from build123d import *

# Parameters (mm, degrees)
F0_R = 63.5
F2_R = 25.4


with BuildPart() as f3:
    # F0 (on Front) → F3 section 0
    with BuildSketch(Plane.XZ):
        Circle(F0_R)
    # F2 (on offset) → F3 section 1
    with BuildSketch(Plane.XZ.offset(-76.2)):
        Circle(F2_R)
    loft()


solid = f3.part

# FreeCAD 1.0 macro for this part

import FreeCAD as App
import Part
import Sketcher

V = App.Vector
Q = App.Units.Quantity

doc = App.newDocument("Part")
params = doc.addObject("Spreadsheet::Sheet", "Params")
for row, (alias, value) in enumerate([
    ("sketch1_diameter", "5 in"),
    ("sketch2_diameter", "2 in"),
], start=1):
    params.set(f"A{row}", alias)
    params.set(f"B{row}", "=" + value)
    params.setAlias(f"B{row}", alias)

body = doc.addObject("PartDesign::Body", "Body")

# Sketch on XZ plane
sketch1 = body.newObject("Sketcher::SketchObject", "Sketch")
sketch1.AttachmentSupport = (doc.getObject("XZ_Plane"), [""])
sketch1.MapMode = "FlatFace"
sketch1.addGeometry(Part.Circle(V(0, 0, 0), V(0, 0, 1), 64), False)
sketch1.addConstraint([
    Sketcher.Constraint("Coincident", 0, 3, -1, 1),
    Sketcher.Constraint("Diameter", 0, Q("5 in")),
])
sketch1.setExpression("Constraints[1]", "Params.sketch1_diameter")

# Sketch on XZ plane
sketch2 = body.newObject("Sketcher::SketchObject", "Sketch001")
sketch2.AttachmentSupport = (doc.getObject("XZ_Plane"), [""])
sketch2.MapMode = "FlatFace"
sketch2.AttachmentOffset = App.Placement(V(0, 0, -3 * 25.4), App.Rotation())
sketch2.addGeometry(Part.Circle(V(0, 0, 0), V(0, 0, 1), 25), False)
sketch2.addConstraint([
    Sketcher.Constraint("Coincident", 0, 3, -1, 1),
    Sketcher.Constraint("Diameter", 0, Q("2 in")),
])
sketch2.setExpression("Constraints[1]", "Params.sketch2_diameter")

additiveloft = body.newObject("PartDesign::AdditiveLoft", "AdditiveLoft")
additiveloft.Profile = sketch1
additiveloft.Sections = [sketch2]

doc.recompute()
